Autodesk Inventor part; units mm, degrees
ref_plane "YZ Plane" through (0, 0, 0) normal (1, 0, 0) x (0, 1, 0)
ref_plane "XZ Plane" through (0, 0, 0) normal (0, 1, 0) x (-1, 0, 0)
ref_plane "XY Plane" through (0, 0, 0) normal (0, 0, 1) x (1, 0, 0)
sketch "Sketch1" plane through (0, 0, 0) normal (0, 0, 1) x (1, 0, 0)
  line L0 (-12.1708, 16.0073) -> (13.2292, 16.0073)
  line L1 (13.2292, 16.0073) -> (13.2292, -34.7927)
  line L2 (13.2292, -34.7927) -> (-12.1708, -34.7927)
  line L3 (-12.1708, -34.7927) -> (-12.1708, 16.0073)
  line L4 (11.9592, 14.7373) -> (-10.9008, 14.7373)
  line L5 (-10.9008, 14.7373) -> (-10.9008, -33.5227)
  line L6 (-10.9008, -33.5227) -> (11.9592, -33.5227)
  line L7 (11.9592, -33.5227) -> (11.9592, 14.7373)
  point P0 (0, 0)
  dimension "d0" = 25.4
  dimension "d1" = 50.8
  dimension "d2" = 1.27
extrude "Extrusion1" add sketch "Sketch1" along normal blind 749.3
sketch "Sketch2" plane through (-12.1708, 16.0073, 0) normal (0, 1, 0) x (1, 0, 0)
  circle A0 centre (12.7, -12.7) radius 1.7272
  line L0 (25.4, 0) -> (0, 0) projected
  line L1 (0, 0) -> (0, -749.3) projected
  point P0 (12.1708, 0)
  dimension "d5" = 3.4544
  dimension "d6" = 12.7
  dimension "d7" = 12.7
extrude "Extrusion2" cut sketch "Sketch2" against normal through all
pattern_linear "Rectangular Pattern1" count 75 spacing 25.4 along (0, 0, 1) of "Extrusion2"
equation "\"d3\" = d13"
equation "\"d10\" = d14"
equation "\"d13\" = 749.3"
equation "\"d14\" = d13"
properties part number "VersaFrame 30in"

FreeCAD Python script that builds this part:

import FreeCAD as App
import Part
import Sketcher

V = App.Vector
Q = App.Units.Quantity

doc = App.newDocument("Part")
params = doc.addObject("Spreadsheet::Sheet", "Params")
for row, (alias, value) in enumerate([
    ("sketch1_width", "1 in"),
    ("sketch1_height", "2 in"),
    ("pad1_length", "29.5 in"),
    ("sketch2_diameter", "0.136 in"),
    ("linearpattern_pitch", "1 in"),
], start=1):
    params.set(f"A{row}", alias)
    params.set(f"B{row}", "=" + value)
    params.setAlias(f"B{row}", alias)

body = doc.addObject("PartDesign::Body", "Body")

# Sketch on XY plane
sketch1 = doc.addObject("Sketcher::SketchObject", "Sketch")
body.addObject(sketch1)
sketch1.AttachmentSupport = (doc.XY_Plane, [""])
sketch1.MapMode = "FlatFace"
sketch1.addGeometry([
    Part.LineSegment(V(13, 16, 0), V(-12, 16, 0)),  # 0
    Part.LineSegment(V(-12, 16, 0), V(-12, -35, 0)),  # 1
    Part.LineSegment(V(-12, -35, 0), V(13, -35, 0)),  # 2
    Part.LineSegment(V(13, -35, 0), V(13, 16, 0)),  # 3
    Part.LineSegment(V(-11, 15, 0), V(12, 15, 0)),  # 4
    Part.LineSegment(V(12, 15, 0), V(12, -34, 0)),  # 5
    Part.LineSegment(V(12, -34, 0), V(-11, -34, 0)),  # 6
    Part.LineSegment(V(-11, -34, 0), V(-11, 15, 0)),  # 7
], False)
sketch1.addConstraint([
    Sketcher.Constraint("Coincident", 0, 2, 1, 1),
    Sketcher.Constraint("Coincident", 1, 2, 2, 1),
    Sketcher.Constraint("Coincident", 2, 2, 3, 1),
    Sketcher.Constraint("Coincident", 3, 2, 0, 1),
    Sketcher.Constraint("Coincident", 4, 2, 5, 1),
    Sketcher.Constraint("Coincident", 5, 2, 6, 1),
    Sketcher.Constraint("Coincident", 6, 2, 7, 1),
    Sketcher.Constraint("Coincident", 7, 2, 4, 1),
    Sketcher.Constraint("Horizontal", 0),
    Sketcher.Constraint("Vertical", 1),
    Sketcher.Constraint("Horizontal", 2),
    Sketcher.Constraint("Vertical", 3),
    Sketcher.Constraint("Horizontal", 4),
    Sketcher.Constraint("Vertical", 5),
    Sketcher.Constraint("Horizontal", 6),
    Sketcher.Constraint("Vertical", 7),
    Sketcher.Constraint("DistanceX", 0, 2, 0, 1, Q("1 in")),
    Sketcher.Constraint("DistanceY", 1, 2, 1, 1, Q("2 in")),
    Sketcher.Constraint("DistanceX", 4, 2, 3, 2, Q("0.05 in")),
    Sketcher.Constraint("DistanceY", 4, 2, 3, 2, Q("0.05 in")),
    Sketcher.Constraint("DistanceY", 2, 2, 5, 2, Q("0.05 in")),
    Sketcher.Constraint("DistanceX", 1, 2, 6, 2, Q("0.05 in")),
    Sketcher.Constraint("DistanceY", -1, 1, 0, 2, Q("0.6302 in")),
    Sketcher.Constraint("DistanceX", 0, 2, -1, 1, 12.1708),
])
sketch1.setExpression("Constraints[16]", "Params.sketch1_width")
sketch1.setExpression("Constraints[17]", "Params.sketch1_height")
pad1 = doc.addObject("PartDesign::Pad", "Pad")
body.addObject(pad1)
pad1.Profile = sketch1
pad1.setExpression("Length", "Params.pad1_length")

# Sketch on XZ plane
sketch2 = doc.addObject("Sketcher::SketchObject", "Sketch001")
body.addObject(sketch2)
sketch2.AttachmentSupport = (doc.XZ_Plane, [""])
sketch2.MapMode = "FlatFace"
sketch2.AttachmentOffset = App.Placement(V(0, 0, -0.6302087 * 25.4), App.Rotation())
sketch2.addGeometry(Part.Circle(V(0.5, 12.7, 0), V(0, 0, 1), 1.7), False)
sketch2.addConstraint([
    Sketcher.Constraint("Diameter", 0, Q("0.136 in")),
    Sketcher.Constraint("DistanceY", -1, 1, 0, 3, Q("0.5 in")),
    Sketcher.Constraint("DistanceX", -1, 1, 0, 3, 0.5292),
])
sketch2.setExpression("Constraints[0]", "Params.sketch2_diameter")
pocket1 = doc.addObject("PartDesign::Pocket", "Pocket")
body.addObject(pocket1)
pocket1.Profile = sketch2
pocket1.Type = "ThroughAll"
pocket1.Reversed = True
doc.recompute()

linearpattern = doc.addObject("PartDesign::LinearPattern", "LinearPattern")
body.addObject(linearpattern)
linearpattern.Originals = [pocket1]
linearpattern.Direction = (doc.Z_Axis, [""])
linearpattern.Mode = "offset"
linearpattern.setExpression("Offset", "Params.linearpattern_pitch")
linearpattern.Occurrences = 75
body.Tip = linearpattern

doc.recompute()
